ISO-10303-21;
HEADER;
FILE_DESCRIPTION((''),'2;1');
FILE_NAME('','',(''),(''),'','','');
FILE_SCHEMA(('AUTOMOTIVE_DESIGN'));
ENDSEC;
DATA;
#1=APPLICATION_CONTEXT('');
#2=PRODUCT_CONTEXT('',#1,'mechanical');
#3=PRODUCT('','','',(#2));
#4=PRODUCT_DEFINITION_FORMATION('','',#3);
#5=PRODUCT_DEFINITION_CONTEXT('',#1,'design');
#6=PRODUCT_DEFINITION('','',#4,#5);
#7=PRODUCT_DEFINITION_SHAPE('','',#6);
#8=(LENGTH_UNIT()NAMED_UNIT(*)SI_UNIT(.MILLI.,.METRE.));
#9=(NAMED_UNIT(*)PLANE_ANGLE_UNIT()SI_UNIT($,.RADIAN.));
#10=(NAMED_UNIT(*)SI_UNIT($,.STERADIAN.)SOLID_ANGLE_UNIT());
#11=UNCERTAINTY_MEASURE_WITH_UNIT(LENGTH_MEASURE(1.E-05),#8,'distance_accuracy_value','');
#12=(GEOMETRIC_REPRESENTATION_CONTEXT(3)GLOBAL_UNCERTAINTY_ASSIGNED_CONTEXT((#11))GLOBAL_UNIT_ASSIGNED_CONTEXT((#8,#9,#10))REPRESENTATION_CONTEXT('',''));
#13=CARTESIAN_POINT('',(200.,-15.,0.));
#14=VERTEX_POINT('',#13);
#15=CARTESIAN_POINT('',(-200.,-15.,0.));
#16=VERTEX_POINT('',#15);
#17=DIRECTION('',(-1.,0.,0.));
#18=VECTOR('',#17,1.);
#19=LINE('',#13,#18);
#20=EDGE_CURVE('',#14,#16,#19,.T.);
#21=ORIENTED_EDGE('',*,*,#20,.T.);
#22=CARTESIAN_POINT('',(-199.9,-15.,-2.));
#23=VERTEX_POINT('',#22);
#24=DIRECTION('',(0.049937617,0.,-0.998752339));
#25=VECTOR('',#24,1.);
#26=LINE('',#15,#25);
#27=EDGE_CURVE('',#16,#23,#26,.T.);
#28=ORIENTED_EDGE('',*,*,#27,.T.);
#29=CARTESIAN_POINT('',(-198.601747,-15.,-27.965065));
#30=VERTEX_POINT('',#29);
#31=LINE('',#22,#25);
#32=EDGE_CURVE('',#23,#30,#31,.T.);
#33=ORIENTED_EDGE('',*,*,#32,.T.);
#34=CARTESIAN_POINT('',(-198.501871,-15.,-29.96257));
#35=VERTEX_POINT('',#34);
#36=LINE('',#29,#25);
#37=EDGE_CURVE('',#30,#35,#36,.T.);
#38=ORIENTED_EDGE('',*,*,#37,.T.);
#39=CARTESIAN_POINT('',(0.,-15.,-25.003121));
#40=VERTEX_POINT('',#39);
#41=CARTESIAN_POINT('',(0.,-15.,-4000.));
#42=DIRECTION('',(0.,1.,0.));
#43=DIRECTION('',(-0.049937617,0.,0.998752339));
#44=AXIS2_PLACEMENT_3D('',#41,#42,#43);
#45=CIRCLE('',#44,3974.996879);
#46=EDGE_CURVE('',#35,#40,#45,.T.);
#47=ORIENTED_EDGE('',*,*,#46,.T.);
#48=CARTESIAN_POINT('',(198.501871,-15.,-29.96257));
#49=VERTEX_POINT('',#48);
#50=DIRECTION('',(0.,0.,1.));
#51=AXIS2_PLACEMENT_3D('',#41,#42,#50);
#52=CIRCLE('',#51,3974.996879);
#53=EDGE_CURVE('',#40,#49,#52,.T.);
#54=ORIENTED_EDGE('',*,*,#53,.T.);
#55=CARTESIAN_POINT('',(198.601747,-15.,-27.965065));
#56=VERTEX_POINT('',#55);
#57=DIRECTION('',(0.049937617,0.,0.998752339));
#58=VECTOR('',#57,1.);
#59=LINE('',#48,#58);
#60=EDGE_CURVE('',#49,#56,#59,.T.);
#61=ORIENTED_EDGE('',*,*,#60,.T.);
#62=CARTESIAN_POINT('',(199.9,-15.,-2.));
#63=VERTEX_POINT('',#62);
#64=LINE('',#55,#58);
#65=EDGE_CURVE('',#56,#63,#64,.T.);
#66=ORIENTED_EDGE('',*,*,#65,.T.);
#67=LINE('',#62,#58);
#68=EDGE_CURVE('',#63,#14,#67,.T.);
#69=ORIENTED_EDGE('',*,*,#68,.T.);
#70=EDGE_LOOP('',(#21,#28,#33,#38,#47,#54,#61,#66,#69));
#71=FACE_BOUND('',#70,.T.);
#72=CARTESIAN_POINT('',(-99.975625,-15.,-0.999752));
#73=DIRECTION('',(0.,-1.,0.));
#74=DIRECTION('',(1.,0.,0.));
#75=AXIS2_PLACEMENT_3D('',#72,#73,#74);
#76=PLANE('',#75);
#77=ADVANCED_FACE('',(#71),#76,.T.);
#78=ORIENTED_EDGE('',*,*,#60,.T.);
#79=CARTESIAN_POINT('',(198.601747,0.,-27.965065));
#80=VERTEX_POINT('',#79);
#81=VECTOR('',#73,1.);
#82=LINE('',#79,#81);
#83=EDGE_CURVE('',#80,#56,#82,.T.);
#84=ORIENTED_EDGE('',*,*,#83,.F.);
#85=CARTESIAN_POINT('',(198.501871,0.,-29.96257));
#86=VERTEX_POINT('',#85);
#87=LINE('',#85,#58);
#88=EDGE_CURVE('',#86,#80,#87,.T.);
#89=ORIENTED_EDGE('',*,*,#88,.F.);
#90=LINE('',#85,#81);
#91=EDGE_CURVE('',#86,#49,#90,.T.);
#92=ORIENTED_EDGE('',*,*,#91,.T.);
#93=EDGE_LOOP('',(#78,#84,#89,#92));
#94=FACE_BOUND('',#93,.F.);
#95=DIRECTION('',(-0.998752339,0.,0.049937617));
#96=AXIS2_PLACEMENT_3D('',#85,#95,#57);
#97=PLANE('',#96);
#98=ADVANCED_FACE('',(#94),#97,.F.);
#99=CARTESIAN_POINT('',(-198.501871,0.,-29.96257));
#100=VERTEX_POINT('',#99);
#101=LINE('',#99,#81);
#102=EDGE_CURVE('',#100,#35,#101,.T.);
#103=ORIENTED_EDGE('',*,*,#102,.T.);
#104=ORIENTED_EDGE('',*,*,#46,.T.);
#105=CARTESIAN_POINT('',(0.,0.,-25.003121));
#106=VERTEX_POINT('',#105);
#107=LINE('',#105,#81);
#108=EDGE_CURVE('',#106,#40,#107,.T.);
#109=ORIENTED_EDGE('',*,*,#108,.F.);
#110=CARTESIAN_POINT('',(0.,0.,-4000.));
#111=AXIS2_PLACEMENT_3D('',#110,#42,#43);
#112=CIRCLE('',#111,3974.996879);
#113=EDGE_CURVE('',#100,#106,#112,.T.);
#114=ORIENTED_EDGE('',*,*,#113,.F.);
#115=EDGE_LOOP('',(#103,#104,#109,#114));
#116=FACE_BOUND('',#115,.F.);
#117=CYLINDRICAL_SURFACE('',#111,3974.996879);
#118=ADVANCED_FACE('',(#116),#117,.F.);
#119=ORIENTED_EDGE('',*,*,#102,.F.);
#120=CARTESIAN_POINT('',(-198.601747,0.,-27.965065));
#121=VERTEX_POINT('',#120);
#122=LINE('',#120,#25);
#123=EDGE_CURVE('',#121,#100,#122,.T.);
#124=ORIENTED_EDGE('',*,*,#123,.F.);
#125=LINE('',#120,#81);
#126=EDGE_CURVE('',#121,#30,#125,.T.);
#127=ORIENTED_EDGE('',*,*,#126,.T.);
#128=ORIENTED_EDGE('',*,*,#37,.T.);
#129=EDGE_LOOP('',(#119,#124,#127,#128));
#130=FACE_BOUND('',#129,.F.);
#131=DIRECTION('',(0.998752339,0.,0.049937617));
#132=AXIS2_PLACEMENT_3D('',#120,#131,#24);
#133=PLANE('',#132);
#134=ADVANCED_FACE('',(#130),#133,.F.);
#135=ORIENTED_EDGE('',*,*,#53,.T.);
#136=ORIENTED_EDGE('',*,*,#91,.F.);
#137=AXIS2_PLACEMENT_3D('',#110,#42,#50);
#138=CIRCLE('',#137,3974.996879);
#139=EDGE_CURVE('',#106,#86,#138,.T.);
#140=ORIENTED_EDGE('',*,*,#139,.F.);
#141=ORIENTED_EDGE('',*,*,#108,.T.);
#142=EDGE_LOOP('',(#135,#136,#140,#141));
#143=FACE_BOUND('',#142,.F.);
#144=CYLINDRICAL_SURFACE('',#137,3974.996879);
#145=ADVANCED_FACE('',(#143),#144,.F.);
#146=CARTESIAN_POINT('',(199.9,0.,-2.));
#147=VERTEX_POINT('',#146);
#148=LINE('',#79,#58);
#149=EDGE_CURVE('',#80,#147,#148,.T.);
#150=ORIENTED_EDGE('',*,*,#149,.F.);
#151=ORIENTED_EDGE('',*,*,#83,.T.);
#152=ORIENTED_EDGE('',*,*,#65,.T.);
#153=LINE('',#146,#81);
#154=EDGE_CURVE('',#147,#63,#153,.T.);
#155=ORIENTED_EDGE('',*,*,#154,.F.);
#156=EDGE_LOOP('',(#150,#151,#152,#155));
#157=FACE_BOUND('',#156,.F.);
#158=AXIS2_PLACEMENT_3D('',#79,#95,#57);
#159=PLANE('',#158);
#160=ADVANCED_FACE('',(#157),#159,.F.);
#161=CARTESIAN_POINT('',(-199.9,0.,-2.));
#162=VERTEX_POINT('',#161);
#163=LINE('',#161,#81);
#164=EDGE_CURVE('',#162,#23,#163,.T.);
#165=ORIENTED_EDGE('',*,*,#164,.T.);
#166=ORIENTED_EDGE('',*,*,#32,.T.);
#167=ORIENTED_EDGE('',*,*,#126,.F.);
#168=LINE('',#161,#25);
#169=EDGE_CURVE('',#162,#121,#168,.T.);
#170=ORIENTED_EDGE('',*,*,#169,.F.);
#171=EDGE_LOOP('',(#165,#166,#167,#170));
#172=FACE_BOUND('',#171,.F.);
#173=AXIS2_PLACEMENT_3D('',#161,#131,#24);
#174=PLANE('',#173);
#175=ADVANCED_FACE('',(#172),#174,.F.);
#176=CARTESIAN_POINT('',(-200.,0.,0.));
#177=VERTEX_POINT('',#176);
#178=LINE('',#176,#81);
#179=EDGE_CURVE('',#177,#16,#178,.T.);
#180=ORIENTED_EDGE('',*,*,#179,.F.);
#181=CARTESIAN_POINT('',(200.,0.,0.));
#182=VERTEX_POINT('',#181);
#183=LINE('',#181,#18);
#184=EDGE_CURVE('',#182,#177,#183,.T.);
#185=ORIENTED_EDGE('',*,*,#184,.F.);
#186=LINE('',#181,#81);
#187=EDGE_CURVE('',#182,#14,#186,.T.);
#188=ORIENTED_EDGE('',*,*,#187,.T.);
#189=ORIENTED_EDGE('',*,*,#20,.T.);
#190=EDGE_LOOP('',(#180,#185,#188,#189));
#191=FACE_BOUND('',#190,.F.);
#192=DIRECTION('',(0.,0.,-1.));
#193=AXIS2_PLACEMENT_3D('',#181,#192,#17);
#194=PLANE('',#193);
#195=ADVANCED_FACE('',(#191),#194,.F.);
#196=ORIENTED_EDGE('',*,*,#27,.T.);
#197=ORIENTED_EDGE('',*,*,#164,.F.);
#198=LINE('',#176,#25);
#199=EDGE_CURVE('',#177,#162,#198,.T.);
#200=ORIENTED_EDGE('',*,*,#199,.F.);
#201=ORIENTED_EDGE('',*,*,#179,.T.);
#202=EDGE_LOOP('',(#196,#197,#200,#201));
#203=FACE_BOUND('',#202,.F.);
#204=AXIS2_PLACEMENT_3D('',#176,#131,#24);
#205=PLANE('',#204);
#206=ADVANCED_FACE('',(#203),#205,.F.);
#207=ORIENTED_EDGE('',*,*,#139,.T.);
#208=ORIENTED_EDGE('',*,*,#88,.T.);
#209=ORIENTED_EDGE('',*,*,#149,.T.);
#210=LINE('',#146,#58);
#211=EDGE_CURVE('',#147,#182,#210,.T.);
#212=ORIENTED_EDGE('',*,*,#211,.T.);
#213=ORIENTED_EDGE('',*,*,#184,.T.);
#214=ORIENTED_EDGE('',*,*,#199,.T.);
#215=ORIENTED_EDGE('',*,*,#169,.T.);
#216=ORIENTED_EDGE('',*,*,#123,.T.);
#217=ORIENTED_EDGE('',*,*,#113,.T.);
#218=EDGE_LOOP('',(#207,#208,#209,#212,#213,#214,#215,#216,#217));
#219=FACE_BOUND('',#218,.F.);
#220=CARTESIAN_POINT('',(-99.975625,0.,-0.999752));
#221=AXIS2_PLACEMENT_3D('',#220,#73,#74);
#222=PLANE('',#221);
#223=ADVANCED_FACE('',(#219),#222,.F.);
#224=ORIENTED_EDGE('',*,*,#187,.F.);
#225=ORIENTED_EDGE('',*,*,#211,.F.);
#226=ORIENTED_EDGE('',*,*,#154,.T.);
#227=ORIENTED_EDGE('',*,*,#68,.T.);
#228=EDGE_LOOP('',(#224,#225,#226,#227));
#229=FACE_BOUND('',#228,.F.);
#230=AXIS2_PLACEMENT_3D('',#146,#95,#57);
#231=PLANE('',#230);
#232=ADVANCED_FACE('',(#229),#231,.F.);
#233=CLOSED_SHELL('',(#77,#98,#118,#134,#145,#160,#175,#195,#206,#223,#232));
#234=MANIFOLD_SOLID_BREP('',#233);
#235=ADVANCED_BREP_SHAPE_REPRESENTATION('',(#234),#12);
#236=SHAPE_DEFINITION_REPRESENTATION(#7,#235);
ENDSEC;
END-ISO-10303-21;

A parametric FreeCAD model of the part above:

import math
import FreeCAD as App
import Part
import Sketcher
from FreeCAD import Vector

doc = App.newDocument("Part")
params = doc.addObject("Spreadsheet::Sheet", "Params")
for row, (alias, value) in enumerate([
    ("sketch1_width", "400 mm"),
    ("sketch1_length", "2 mm"),
    ("pad1_length", "15 mm"),
], start=1):
    params.set(f"A{row}", alias)
    params.set(f"B{row}", "=" + value)
    params.setAlias(f"B{row}", alias)

body = doc.addObject("PartDesign::Body", "Body")

# Sketch on XZ plane
sketch1 = doc.addObject("Sketcher::SketchObject", "Sketch")
body.addObject(sketch1)
sketch1.AttachmentSupport = (doc.XZ_Plane, [""])
sketch1.MapMode = "FlatFace"
sketch1.addGeometry(Part.LineSegment(Vector(-200, 0, 0), Vector(-199.9, -2, 0)), False)
sketch1.addGeometry(Part.LineSegment(Vector(-199.9, -2, 0), Vector(-198.6, -28, 0)), False)
sketch1.addGeometry(Part.LineSegment(Vector(-198.6, -28, 0), Vector(-198.5, -30, 0)), False)
sketch1.addGeometry(Part.ArcOfCircle(Part.Circle(Vector(0, -4000, 0), Vector(0, 0, 1), 3975), math.radians(90), math.radians(92.86)), False)
sketch1.addGeometry(Part.ArcOfCircle(Part.Circle(Vector(0, -4000, 0), Vector(0, 0, 1), 3975), math.radians(87.14), math.radians(90)), False)
sketch1.addGeometry(Part.LineSegment(Vector(198.5, -30, 0), Vector(198.6, -28, 0)), False)
sketch1.addGeometry(Part.LineSegment(Vector(198.6, -28, 0), Vector(199.9, -2, 0)), False)
sketch1.addGeometry(Part.LineSegment(Vector(199.9, -2, 0), Vector(200, 0, 0)), False)
sketch1.addGeometry(Part.LineSegment(Vector(200, 0, 0), Vector(-200, 0, 0)), False)
sketch1.addConstraint(Sketcher.Constraint("Coincident", 0, 2, 1, 1))
sketch1.addConstraint(Sketcher.Constraint("Coincident", 1, 2, 2, 1))
sketch1.addConstraint(Sketcher.Constraint("Coincident", 2, 2, 3, 2))
sketch1.addConstraint(Sketcher.Constraint("Coincident", 3, 1, 4, 2))
sketch1.addConstraint(Sketcher.Constraint("Coincident", 4, 1, 5, 1))
sketch1.addConstraint(Sketcher.Constraint("Coincident", 5, 2, 6, 1))
sketch1.addConstraint(Sketcher.Constraint("Coincident", 6, 2, 7, 1))
sketch1.addConstraint(Sketcher.Constraint("Coincident", 7, 2, 8, 1))
sketch1.addConstraint(Sketcher.Constraint("Coincident", 8, 2, 0, 1))
sketch1.addConstraint(Sketcher.Constraint("Horizontal", 8))
sketch1.addConstraint(Sketcher.Constraint("Coincident", 4, 3, 3, 3))
sketch1.addConstraint(Sketcher.Constraint("Symmetric", 7, 2, 8, 2, -1, 1))
sketch1.addConstraint(Sketcher.Constraint("Symmetric", 1, 2, 5, 2, -2))
sketch1.addConstraint(Sketcher.Constraint("Symmetric", 0, 2, 6, 2, -2))
sketch1.addConstraint(Sketcher.Constraint("PointOnObject", 3, 3, -2))
sketch1.addConstraint(Sketcher.Constraint("PointOnObject", 3, 1, -2))
sketch1.addConstraint(Sketcher.Constraint("Parallel", 0, 1))
sketch1.addConstraint(Sketcher.Constraint("Parallel", 1, 2))
sketch1.addConstraint(Sketcher.Constraint("Parallel", 5, 6))
sketch1.addConstraint(Sketcher.Constraint("DistanceX", 8, 2, 8, 1, 400.0))
sketch1.addConstraint(Sketcher.Constraint("Distance", 2, 2.0))
sketch1.addConstraint(Sketcher.Constraint("DistanceY", 3, 3, -1, 1, 4000.0))
sketch1.addConstraint(Sketcher.Constraint("DistanceY", 0, 2, -1, 1, 2.0))
sketch1.addConstraint(Sketcher.Constraint("DistanceX", 0, 2, -1, 1, 199.9))
sketch1.addConstraint(Sketcher.Constraint("Radius", 3, 3974.996879))
sketch1.setExpression("Constraints[19]", "Params.sketch1_width")
sketch1.setExpression("Constraints[20]", "Params.sketch1_length")
pad1 = doc.addObject("PartDesign::Pad", "Pad")
body.addObject(pad1)
pad1.Profile = sketch1
pad1.setExpression("Length", "Params.pad1_length")

doc.recompute()
